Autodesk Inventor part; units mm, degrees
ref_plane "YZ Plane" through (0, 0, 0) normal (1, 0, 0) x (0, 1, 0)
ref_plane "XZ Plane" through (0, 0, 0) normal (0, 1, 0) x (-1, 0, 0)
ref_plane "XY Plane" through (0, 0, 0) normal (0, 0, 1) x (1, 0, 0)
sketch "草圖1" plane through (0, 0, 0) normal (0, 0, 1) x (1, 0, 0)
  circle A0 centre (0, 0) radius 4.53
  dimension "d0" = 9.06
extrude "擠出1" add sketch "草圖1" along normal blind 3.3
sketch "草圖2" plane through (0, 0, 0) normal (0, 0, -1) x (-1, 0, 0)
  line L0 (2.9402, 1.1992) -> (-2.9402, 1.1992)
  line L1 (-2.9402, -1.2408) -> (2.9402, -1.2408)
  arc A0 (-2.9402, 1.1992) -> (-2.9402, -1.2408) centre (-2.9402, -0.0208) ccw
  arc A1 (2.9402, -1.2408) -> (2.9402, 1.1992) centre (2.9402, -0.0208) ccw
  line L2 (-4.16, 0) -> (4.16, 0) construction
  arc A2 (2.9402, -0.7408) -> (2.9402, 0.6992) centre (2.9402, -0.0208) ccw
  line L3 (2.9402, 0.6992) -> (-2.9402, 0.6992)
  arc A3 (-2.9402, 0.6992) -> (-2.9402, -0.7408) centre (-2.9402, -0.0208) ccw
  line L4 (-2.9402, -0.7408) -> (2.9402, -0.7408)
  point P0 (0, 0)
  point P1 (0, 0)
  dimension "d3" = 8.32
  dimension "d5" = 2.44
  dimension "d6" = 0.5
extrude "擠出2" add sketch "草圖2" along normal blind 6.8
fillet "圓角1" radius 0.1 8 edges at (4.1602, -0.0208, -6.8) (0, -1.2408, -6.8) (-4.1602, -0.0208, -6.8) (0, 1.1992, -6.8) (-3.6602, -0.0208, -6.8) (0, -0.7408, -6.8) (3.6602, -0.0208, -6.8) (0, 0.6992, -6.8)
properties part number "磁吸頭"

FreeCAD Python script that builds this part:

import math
import FreeCAD as App
import Part
import Sketcher


def edges_at(feature, points):
    """Names of the edges that pass closest to the given points."""
    edges = feature.Shape.Edges
    near = lambda p: min(range(len(edges)), key=lambda i: edges[i].distToShape(Part.Vertex(*p))[0])
    return sorted({f"Edge{near(p) + 1}" for p in points})

doc = App.newDocument("Part")
body = doc.addObject("PartDesign::Body", "Body")

# Sketch on XY plane
sketch1 = doc.addObject("Sketcher::SketchObject", "Sketch")
body.addObject(sketch1)
sketch1.AttachmentSupport = (doc.XY_Plane, [""])
sketch1.MapMode = "FlatFace"
sketch1.addGeometry(Part.Circle(App.Vector(0, 0, 0), App.Vector(0, 0, 1), 4.53), False)
sketch1.addConstraint(Sketcher.Constraint("Coincident", 0, 3, -1, 1))
sketch1.addConstraint(Sketcher.Constraint("Diameter", 0, 9.06))
pad1 = doc.addObject("PartDesign::Pad", "Pad")
body.addObject(pad1)
pad1.Profile = sketch1
pad1.Length = 3.3

# Sketch on XY plane
sketch2 = doc.addObject("Sketcher::SketchObject", "Sketch001")
body.addObject(sketch2)
sketch2.AttachmentSupport = (doc.XY_Plane, [""])
sketch2.MapMode = "FlatFace"
sketch2.addGeometry(Part.ArcOfCircle(Part.Circle(App.Vector(-2.9402, -0.0208, 0), App.Vector(0, 0, 1), 1.22), math.radians(90), math.radians(270)), False)
sketch2.addGeometry(Part.LineSegment(App.Vector(-2.9402, 1.1992, 0), App.Vector(2.9402, 1.1992, 0)), False)
sketch2.addGeometry(Part.ArcOfCircle(Part.Circle(App.Vector(2.9402, -0.0208, 0), App.Vector(0, 0, 1), 1.22), math.radians(-90), math.radians(90)), False)
sketch2.addGeometry(Part.LineSegment(App.Vector(2.9402, -1.2408, 0), App.Vector(-2.9402, -1.2408, 0)), False)
sketch2.addGeometry(Part.ArcOfCircle(Part.Circle(App.Vector(-2.9402, -0.0208, 0), App.Vector(0, 0, 1), 0.72), math.radians(90), math.radians(270)), False)
sketch2.addGeometry(Part.LineSegment(App.Vector(-2.9402, -0.7408, 0), App.Vector(2.9402, -0.7408, 0)), False)
sketch2.addGeometry(Part.ArcOfCircle(Part.Circle(App.Vector(2.9402, -0.0208, 0), App.Vector(0, 0, 1), 0.72), math.radians(-90), math.radians(90)), False)
sketch2.addGeometry(Part.LineSegment(App.Vector(2.9402, 0.6992, 0), App.Vector(-2.9402, 0.6992, 0)), False)
sketch2.addConstraint(Sketcher.Constraint("Tangent", 0, 1, 1, 1))
sketch2.addConstraint(Sketcher.Constraint("Tangent", 1, 2, 2, 2))
sketch2.addConstraint(Sketcher.Constraint("Tangent", 2, 1, 3, 1))
sketch2.addConstraint(Sketcher.Constraint("Tangent", 3, 2, 0, 2))
sketch2.addConstraint(Sketcher.Constraint("Tangent", 4, 2, 5, 1))
sketch2.addConstraint(Sketcher.Constraint("Tangent", 5, 2, 6, 1))
sketch2.addConstraint(Sketcher.Constraint("Tangent", 6, 2, 7, 1))
sketch2.addConstraint(Sketcher.Constraint("Tangent", 7, 2, 4, 1))
sketch2.addConstraint(Sketcher.Constraint("Horizontal", 1))
sketch2.addConstraint(Sketcher.Constraint("Horizontal", 3))
sketch2.addConstraint(Sketcher.Constraint("Horizontal", 5))
sketch2.addConstraint(Sketcher.Constraint("Horizontal", 7))
sketch2.addConstraint(Sketcher.Constraint("Coincident", 4, 3, 0, 3))
sketch2.addConstraint(Sketcher.Constraint("Vertical", 6, 3, 1, 2))
sketch2.addConstraint(Sketcher.Constraint("Radius", 0, 1.22))
sketch2.addConstraint(Sketcher.Constraint("DistanceY", 3, 2, 4, 2, 0.5))
sketch2.addConstraint(Sketcher.Constraint("DistanceX", 1, 1, 1, 2, 5.8804))
sketch2.addConstraint(Sketcher.Constraint("DistanceX", 0, 3, -1, 1, 2.9402))
sketch2.addConstraint(Sketcher.Constraint("DistanceY", 0, 3, -1, 1, 0.0208))
pad2 = doc.addObject("PartDesign::Pad", "Pad001")
body.addObject(pad2)
pad2.Profile = sketch2
pad2.Length = 6.8
pad2.Reversed = True
doc.recompute()

fillet = doc.addObject("PartDesign::Fillet", "Fillet")
body.addObject(fillet)
fillet.Base = (pad2, edges_at(pad2, [
    (4.16, -0.021, -6.8),
    (0, -1.241, -6.8),
    (-4.16, -0.021, -6.8),
    (0, 1.199, -6.8),
    (-3.66, -0.021, -6.8),
    (0, -0.741, -6.8),
    (3.66, -0.021, -6.8),
    (0, 0.699, -6.8),
]))
fillet.Radius = 0.1

doc.recompute()
